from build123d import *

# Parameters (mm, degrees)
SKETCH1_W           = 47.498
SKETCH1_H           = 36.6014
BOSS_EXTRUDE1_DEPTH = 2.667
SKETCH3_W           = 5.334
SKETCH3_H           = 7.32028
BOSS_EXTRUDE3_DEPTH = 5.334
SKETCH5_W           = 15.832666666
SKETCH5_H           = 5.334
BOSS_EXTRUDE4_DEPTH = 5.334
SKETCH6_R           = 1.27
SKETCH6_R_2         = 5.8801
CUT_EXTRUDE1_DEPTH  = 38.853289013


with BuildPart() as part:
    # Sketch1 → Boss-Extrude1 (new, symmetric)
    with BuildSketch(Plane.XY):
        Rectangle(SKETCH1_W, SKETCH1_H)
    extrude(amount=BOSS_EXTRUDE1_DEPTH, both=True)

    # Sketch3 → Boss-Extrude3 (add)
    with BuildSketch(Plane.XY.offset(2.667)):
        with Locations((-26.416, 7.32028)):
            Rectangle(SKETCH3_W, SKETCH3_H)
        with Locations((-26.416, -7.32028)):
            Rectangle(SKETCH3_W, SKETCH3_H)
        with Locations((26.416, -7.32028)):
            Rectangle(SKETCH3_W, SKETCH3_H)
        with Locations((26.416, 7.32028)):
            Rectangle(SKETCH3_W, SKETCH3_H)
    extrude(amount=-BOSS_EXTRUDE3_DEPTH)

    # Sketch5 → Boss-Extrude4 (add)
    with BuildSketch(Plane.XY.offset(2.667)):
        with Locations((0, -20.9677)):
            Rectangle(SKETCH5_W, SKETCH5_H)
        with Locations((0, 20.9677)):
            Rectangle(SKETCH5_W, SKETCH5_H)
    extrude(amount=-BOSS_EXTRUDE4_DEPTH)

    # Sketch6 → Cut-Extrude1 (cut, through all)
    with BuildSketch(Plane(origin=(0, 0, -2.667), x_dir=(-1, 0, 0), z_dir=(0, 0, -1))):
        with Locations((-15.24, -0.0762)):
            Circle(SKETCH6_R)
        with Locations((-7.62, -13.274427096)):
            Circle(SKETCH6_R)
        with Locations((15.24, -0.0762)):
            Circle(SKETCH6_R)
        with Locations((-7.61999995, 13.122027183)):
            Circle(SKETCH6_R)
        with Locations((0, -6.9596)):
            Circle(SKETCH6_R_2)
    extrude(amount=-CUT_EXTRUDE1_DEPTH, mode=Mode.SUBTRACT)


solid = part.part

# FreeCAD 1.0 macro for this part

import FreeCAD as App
import Part
import Sketcher

V = App.Vector
Q = App.Units.Quantity

doc = App.newDocument("Part")
body = doc.addObject("PartDesign::Body", "Body")

# Sketch on XY plane
sketch1 = doc.addObject("Sketcher::SketchObject", "Sketch")
body.addObject(sketch1)
sketch1.AttachmentSupport = (doc.XY_Plane, [""])
sketch1.MapMode = "FlatFace"
sketch1.addGeometry([
    Part.LineSegment(V(-24, 18, 0), V(-24, -18, 0)),
    Part.LineSegment(V(-24, -18, 0), V(24, -18, 0)),
    Part.LineSegment(V(24, -18, 0), V(24, 18, 0)),
    Part.LineSegment(V(24, 18, 0), V(-24, 18, 0)),
], False)
sketch1.addConstraint([
    Sketcher.Constraint("Coincident", 0, 2, 1, 1),
    Sketcher.Constraint("Coincident", 1, 2, 2, 1),
    Sketcher.Constraint("Coincident", 2, 2, 3, 1),
    Sketcher.Constraint("Coincident", 3, 2, 0, 1),
    Sketcher.Constraint("Vertical", 0),
    Sketcher.Constraint("Horizontal", 1),
    Sketcher.Constraint("Vertical", 2),
    Sketcher.Constraint("Horizontal", 3),
    Sketcher.Constraint("Symmetric", 0, 2, 2, 2, -1, 1),
    Sketcher.Constraint("DistanceX", 1, 1, 1, 2, Q("1.87 in")),
    Sketcher.Constraint("DistanceY", 0, 2, 0, 1, Q("1.441 in")),
])
pad1 = doc.addObject("PartDesign::Pad", "Pad")
body.addObject(pad1)
pad1.Profile = sketch1
pad1.Length = Q("0.21 in")
pad1.Midplane = True

# Sketch on XY plane
sketch2 = doc.addObject("Sketcher::SketchObject", "Sketch001")
body.addObject(sketch2)
sketch2.AttachmentSupport = (doc.XY_Plane, [""])
sketch2.MapMode = "FlatFace"
sketch2.AttachmentOffset = App.Placement(V(0, 0, 0.105 * 25.4), App.Rotation())
sketch2.addGeometry([
    Part.LineSegment(V(-29, 11, 0), V(-29, 4, 0)),  # 0
    Part.LineSegment(V(-29, 4, 0), V(-24, 4, 0)),  # 1
    Part.LineSegment(V(-24, 4, 0), V(-24, 11, 0)),  # 2
    Part.LineSegment(V(-24, 11, 0), V(-29, 11, 0)),  # 3
    Part.LineSegment(V(-29, -4, 0), V(-29, -11, 0)),  # 4
    Part.LineSegment(V(-29, -11, 0), V(-24, -11, 0)),  # 5
    Part.LineSegment(V(-24, -11, 0), V(-24, -4, 0)),  # 6
    Part.LineSegment(V(-24, -4, 0), V(-29, -4, 0)),  # 7
    Part.LineSegment(V(24, -4, 0), V(24, -11, 0)),  # 8
    Part.LineSegment(V(24, -11, 0), V(29, -11, 0)),  # 9
    Part.LineSegment(V(29, -11, 0), V(29, -4, 0)),  # 10
    Part.LineSegment(V(29, -4, 0), V(24, -4, 0)),  # 11
    Part.LineSegment(V(24, 11, 0), V(24, 4, 0)),  # 12
    Part.LineSegment(V(24, 4, 0), V(29, 4, 0)),  # 13
    Part.LineSegment(V(29, 4, 0), V(29, 11, 0)),  # 14
    Part.LineSegment(V(29, 11, 0), V(24, 11, 0)),  # 15
], False)
sketch2.addConstraint([
    Sketcher.Constraint("Coincident", 0, 2, 1, 1),
    Sketcher.Constraint("Coincident", 1, 2, 2, 1),
    Sketcher.Constraint("Coincident", 2, 2, 3, 1),
    Sketcher.Constraint("Coincident", 3, 2, 0, 1),
    Sketcher.Constraint("Coincident", 4, 2, 5, 1),
    Sketcher.Constraint("Coincident", 5, 2, 6, 1),
    Sketcher.Constraint("Coincident", 6, 2, 7, 1),
    Sketcher.Constraint("Coincident", 7, 2, 4, 1),
    Sketcher.Constraint("Coincident", 8, 2, 9, 1),
    Sketcher.Constraint("Coincident", 9, 2, 10, 1),
    Sketcher.Constraint("Coincident", 10, 2, 11, 1),
    Sketcher.Constraint("Coincident", 11, 2, 8, 1),
    Sketcher.Constraint("Coincident", 12, 2, 13, 1),
    Sketcher.Constraint("Coincident", 13, 2, 14, 1),
    Sketcher.Constraint("Coincident", 14, 2, 15, 1),
    Sketcher.Constraint("Coincident", 15, 2, 12, 1),
    Sketcher.Constraint("Vertical", 0),
    Sketcher.Constraint("Horizontal", 1),
    Sketcher.Constraint("Vertical", 2),
    Sketcher.Constraint("Horizontal", 3),
    Sketcher.Constraint("Vertical", 4),
    Sketcher.Constraint("Horizontal", 5),
    Sketcher.Constraint("Vertical", 6),
    Sketcher.Constraint("Horizontal", 7),
    Sketcher.Constraint("Vertical", 8),
    Sketcher.Constraint("Horizontal", 9),
    Sketcher.Constraint("Vertical", 10),
    Sketcher.Constraint("Horizontal", 11),
    Sketcher.Constraint("Vertical", 12),
    Sketcher.Constraint("Horizontal", 13),
    Sketcher.Constraint("Vertical", 14),
    Sketcher.Constraint("Horizontal", 15),
    Sketcher.Constraint("Symmetric", 2, 2, 8, 2, -1, 1),
    Sketcher.Constraint("Symmetric", 0, 2, 10, 2, -1, 1),
    Sketcher.Constraint("Symmetric", 6, 2, 12, 2, -1, 1),
    Sketcher.Constraint("Symmetric", 4, 2, 14, 2, -1, 1),
    Sketcher.Constraint("Symmetric", 5, 2, 8, 2, -2),
    Sketcher.Constraint("Symmetric", 7, 2, 10, 2, -2),
    Sketcher.Constraint("DistanceX", 1, 1, 1, 2, Q("0.21 in")),
    Sketcher.Constraint("DistanceX", 5, 2, 8, 2, Q("1.87 in")),
    Sketcher.Constraint("DistanceY", 0, 2, 0, 1, Q("0.2882 in")),
    Sketcher.Constraint("DistanceY", -1, 1, 0, 2, Q("0.1441 in")),
])
pad2 = doc.addObject("PartDesign::Pad", "Pad001")
body.addObject(pad2)
pad2.Profile = sketch2
pad2.Length = Q("0.21 in")
pad2.Reversed = True

# Sketch on XY plane
sketch3 = doc.addObject("Sketcher::SketchObject", "Sketch002")
body.addObject(sketch3)
sketch3.AttachmentSupport = (doc.XY_Plane, [""])
sketch3.MapMode = "FlatFace"
sketch3.AttachmentOffset = App.Placement(V(0, 0, 0.105 * 25.4), App.Rotation())
sketch3.addGeometry([
    Part.LineSegment(V(-8, -18, 0), V(-8, -24, 0)),  # 0
    Part.LineSegment(V(-8, -24, 0), V(8, -24, 0)),  # 1
    Part.LineSegment(V(8, -24, 0), V(8, -18, 0)),  # 2
    Part.LineSegment(V(8, -18, 0), V(-8, -18, 0)),  # 3
    Part.LineSegment(V(-8, 24, 0), V(-8, 18, 0)),  # 4
    Part.LineSegment(V(-8, 18, 0), V(8, 18, 0)),  # 5
    Part.LineSegment(V(8, 18, 0), V(8, 24, 0)),  # 6
    Part.LineSegment(V(8, 24, 0), V(-8, 24, 0)),  # 7
], False)
sketch3.addConstraint([
    Sketcher.Constraint("Coincident", 0, 2, 1, 1),
    Sketcher.Constraint("Coincident", 1, 2, 2, 1),
    Sketcher.Constraint("Coincident", 2, 2, 3, 1),
    Sketcher.Constraint("Coincident", 3, 2, 0, 1),
    Sketcher.Constraint("Coincident", 4, 2, 5, 1),
    Sketcher.Constraint("Coincident", 5, 2, 6, 1),
    Sketcher.Constraint("Coincident", 6, 2, 7, 1),
    Sketcher.Constraint("Coincident", 7, 2, 4, 1),
    Sketcher.Constraint("Vertical", 0),
    Sketcher.Constraint("Horizontal", 1),
    Sketcher.Constraint("Vertical", 2),
    Sketcher.Constraint("Horizontal", 3),
    Sketcher.Constraint("Vertical", 4),
    Sketcher.Constraint("Horizontal", 5),
    Sketcher.Constraint("Vertical", 6),
    Sketcher.Constraint("Horizontal", 7),
    Sketcher.Constraint("Symmetric", 2, 2, 4, 2, -1, 1),
    Sketcher.Constraint("Symmetric", 0, 2, 6, 2, -1, 1),
    Sketcher.Constraint("Vertical", 3, 2, 4, 2),
    Sketcher.Constraint("DistanceY", 0, 2, 0, 1, Q("0.21 in")),
    Sketcher.Constraint("DistanceY", 3, 2, 4, 2, Q("1.441 in")),
    Sketcher.Constraint("DistanceX", 1, 1, 1, 2, 15.832667),
])
pad3 = doc.addObject("PartDesign::Pad", "Pad002")
body.addObject(pad3)
pad3.Profile = sketch3
pad3.Length = Q("0.21 in")
pad3.Reversed = True

# Sketch on XY plane
sketch4 = doc.addObject("Sketcher::SketchObject", "Sketch003")
body.addObject(sketch4)
sketch4.AttachmentSupport = (doc.XY_Plane, [""])
sketch4.MapMode = "FlatFace"
sketch4.AttachmentOffset = App.Placement(V(0, 0, -0.105 * 25.4), App.Rotation())
sketch4.addGeometry([
    Part.Circle(V(15.2, -0.1, 0), V(0, 0, 1), 1.3),  # 0
    Part.Circle(V(7.6, -13.3, 0), V(0, 0, 1), 1.3),  # 1
    Part.Circle(V(-15.2, -0.1, 0), V(0, 0, 1), 1.3),  # 2
    Part.Circle(V(7.6, 13.1, 0), V(0, 0, 1), 1.3),  # 3
    Part.Circle(V(0, -7, 0), V(0, 0, 1), 5.9),  # 4
], False)
sketch4.addConstraint([
    Sketcher.Constraint("Equal", 0, 1),
    Sketcher.Constraint("Equal", 1, 2),
    Sketcher.Constraint("Equal", 2, 3),
    Sketcher.Constraint("Symmetric", 0, 3, 2, 3, -2),
    Sketcher.Constraint("PointOnObject", 4, 3, -2),
    Sketcher.Constraint("Vertical", 1, 3, 3, 3),
    Sketcher.Constraint("Diameter", 0, Q("0.1 in")),
    Sketcher.Constraint("Diameter", 4, Q("0.463 in")),
    Sketcher.Constraint("DistanceX", -1, 1, 0, 3, Q("0.6 in")),
    Sketcher.Constraint("DistanceX", -1, 1, 1, 3, Q("0.3 in")),
    Sketcher.Constraint("DistanceY", 0, 3, -1, 1, Q("0.003 in")),
    Sketcher.Constraint("DistanceY", 4, 3, -1, 1, Q("0.274 in")),
    Sketcher.Constraint("DistanceY", 1, 3, -1, 1, 13.274427),
    Sketcher.Constraint("DistanceY", -1, 1, 3, 3, 13.122027),
])
pocket1 = doc.addObject("PartDesign::Pocket", "Pocket")
body.addObject(pocket1)
pocket1.Profile = sketch4
pocket1.Type = "ThroughAll"
pocket1.Reversed = True

doc.recompute()
